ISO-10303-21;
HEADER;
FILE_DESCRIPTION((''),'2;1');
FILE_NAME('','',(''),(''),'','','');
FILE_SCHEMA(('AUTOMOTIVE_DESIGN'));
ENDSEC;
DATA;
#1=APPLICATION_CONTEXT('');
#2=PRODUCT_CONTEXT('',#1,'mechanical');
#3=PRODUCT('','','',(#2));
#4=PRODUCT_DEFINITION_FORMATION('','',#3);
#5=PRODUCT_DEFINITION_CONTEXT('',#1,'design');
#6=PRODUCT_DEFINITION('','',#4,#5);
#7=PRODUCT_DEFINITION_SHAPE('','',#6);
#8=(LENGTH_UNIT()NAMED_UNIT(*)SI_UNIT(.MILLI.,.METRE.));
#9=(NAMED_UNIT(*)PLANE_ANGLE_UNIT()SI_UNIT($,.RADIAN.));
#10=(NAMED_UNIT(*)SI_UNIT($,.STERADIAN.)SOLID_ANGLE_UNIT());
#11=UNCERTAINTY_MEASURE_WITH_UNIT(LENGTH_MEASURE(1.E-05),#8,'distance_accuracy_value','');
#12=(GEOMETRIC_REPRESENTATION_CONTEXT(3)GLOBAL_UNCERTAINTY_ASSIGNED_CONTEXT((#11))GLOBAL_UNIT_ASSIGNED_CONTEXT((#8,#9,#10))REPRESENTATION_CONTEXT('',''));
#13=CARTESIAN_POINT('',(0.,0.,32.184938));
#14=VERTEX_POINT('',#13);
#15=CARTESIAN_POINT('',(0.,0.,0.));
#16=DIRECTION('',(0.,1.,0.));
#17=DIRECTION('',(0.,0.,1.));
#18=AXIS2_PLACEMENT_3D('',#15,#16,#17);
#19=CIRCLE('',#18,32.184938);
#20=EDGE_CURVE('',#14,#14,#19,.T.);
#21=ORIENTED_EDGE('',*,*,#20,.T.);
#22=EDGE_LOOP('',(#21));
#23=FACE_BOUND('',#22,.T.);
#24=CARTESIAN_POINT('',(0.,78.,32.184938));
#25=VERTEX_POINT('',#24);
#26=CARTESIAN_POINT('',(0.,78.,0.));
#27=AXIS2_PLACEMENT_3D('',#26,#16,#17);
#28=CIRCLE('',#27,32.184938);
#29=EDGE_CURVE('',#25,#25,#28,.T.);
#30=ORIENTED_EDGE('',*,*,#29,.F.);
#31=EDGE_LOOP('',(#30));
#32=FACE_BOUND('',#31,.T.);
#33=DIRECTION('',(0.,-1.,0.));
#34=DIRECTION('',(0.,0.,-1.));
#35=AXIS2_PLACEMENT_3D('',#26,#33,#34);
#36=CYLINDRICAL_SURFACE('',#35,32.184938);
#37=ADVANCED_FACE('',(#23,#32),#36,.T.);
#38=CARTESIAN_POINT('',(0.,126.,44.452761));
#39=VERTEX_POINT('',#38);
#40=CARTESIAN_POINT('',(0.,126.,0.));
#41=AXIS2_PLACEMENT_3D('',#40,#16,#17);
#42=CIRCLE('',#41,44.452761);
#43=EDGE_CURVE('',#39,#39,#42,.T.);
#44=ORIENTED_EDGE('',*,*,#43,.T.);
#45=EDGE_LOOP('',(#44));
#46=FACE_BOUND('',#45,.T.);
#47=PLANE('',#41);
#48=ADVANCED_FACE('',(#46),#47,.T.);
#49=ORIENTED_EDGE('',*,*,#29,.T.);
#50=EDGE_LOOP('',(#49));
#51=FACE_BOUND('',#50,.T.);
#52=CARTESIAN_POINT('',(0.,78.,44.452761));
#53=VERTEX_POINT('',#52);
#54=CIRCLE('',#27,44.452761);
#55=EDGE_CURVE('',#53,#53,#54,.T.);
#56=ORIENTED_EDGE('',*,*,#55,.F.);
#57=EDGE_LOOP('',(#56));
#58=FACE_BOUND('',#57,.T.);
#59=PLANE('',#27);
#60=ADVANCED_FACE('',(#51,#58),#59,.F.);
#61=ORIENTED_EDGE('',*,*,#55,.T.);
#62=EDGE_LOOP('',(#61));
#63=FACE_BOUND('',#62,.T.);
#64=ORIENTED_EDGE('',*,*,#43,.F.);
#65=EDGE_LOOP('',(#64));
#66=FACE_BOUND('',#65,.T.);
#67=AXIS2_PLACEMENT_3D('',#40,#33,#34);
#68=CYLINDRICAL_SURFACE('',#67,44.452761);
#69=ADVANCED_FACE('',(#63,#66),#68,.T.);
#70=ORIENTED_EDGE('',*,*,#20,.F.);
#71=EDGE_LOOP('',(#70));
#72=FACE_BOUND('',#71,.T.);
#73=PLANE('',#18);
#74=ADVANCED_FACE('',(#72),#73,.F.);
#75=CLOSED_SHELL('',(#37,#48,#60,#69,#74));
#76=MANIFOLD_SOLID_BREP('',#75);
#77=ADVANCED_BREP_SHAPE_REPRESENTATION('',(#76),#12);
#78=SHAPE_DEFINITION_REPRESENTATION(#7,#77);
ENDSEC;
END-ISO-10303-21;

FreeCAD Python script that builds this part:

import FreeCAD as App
import Part
import Sketcher
Q = App.Units.Quantity

doc = App.newDocument("Part")
body = doc.addObject("PartDesign::Body", "Body")

sketch1 = body.newObject("Sketcher::SketchObject", "Sketch")
sketch1.AttachmentSupport = (doc.getObject("XZ_Plane"), [""])
sketch1.MapMode = "FlatFace"
sketch1.addGeometry(Part.Circle(App.Vector(0, 0, 0), App.Vector(0, 0, 1), 32.184938), False)
sketch1.addConstraint([
    Sketcher.Constraint("Coincident", 0, 3, -1, 1),
    Sketcher.Constraint("Diameter", 0, Q("64.369877 mm")),
])
pad1 = body.newObject("PartDesign::Pad", "Pad")
pad1.Profile = sketch1
pad1.Length = 78
pad1.Reversed = True

sketch2 = body.newObject("Sketcher::SketchObject", "Sketch001")
sketch2.AttachmentSupport = (doc.getObject("XZ_Plane"), [""])
sketch2.MapMode = "FlatFace"
sketch2.AttachmentOffset = App.Placement(App.Vector(0, 0, -78), App.Rotation())
sketch2.addGeometry(Part.Circle(App.Vector(0, 0, 0), App.Vector(0, 0, 1), 44.452761), False)
sketch2.addConstraint([
    Sketcher.Constraint("Coincident", 0, 3, -1, 1),
    Sketcher.Constraint("Diameter", 0, Q("88.905522 mm")),
])
pad2 = body.newObject("PartDesign::Pad", "Pad001")
pad2.Profile = sketch2
pad2.Length = 48
pad2.Reversed = True

doc.recompute()
